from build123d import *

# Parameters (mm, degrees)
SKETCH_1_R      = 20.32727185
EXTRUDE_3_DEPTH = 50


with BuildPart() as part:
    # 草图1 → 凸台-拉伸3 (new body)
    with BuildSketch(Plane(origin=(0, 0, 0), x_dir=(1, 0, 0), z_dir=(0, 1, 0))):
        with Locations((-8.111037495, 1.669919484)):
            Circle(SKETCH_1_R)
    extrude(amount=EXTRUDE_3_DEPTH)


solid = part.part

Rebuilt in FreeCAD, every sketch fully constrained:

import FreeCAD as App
import Part
import Sketcher

V = App.Vector

doc = App.newDocument("Part")
params = doc.addObject("Spreadsheet::Sheet", "Params")
for row, (alias, value) in enumerate([
    ("pad1_length", "50 mm"),
], start=1):
    params.set(f"A{row}", alias)
    params.set(f"B{row}", "=" + value)
    params.setAlias(f"B{row}", alias)

body = doc.addObject("PartDesign::Body", "Body")

sketch1 = doc.addObject("Sketcher::SketchObject", "Sketch")
body.addObject(sketch1)
sketch1.AttachmentSupport = (doc.XZ_Plane, [""])
sketch1.MapMode = "FlatFace"
sketch1.addGeometry(Part.Circle(V(-8.111037, -1.669919, 0), V(0, 0, 1), 20.327272), False)
sketch1.addConstraint(Sketcher.Constraint("Diameter", 0, 40.654544))
sketch1.addConstraint(Sketcher.Constraint("DistanceY", 0, 3, -1, 1, 1.669919))
sketch1.addConstraint(Sketcher.Constraint("DistanceX", 0, 3, -1, 1, 8.111037))
pad1 = doc.addObject("PartDesign::Pad", "Pad")
body.addObject(pad1)
pad1.Profile = sketch1
pad1.setExpression("Length", "Params.pad1_length")
pad1.Reversed = True

doc.recompute()
